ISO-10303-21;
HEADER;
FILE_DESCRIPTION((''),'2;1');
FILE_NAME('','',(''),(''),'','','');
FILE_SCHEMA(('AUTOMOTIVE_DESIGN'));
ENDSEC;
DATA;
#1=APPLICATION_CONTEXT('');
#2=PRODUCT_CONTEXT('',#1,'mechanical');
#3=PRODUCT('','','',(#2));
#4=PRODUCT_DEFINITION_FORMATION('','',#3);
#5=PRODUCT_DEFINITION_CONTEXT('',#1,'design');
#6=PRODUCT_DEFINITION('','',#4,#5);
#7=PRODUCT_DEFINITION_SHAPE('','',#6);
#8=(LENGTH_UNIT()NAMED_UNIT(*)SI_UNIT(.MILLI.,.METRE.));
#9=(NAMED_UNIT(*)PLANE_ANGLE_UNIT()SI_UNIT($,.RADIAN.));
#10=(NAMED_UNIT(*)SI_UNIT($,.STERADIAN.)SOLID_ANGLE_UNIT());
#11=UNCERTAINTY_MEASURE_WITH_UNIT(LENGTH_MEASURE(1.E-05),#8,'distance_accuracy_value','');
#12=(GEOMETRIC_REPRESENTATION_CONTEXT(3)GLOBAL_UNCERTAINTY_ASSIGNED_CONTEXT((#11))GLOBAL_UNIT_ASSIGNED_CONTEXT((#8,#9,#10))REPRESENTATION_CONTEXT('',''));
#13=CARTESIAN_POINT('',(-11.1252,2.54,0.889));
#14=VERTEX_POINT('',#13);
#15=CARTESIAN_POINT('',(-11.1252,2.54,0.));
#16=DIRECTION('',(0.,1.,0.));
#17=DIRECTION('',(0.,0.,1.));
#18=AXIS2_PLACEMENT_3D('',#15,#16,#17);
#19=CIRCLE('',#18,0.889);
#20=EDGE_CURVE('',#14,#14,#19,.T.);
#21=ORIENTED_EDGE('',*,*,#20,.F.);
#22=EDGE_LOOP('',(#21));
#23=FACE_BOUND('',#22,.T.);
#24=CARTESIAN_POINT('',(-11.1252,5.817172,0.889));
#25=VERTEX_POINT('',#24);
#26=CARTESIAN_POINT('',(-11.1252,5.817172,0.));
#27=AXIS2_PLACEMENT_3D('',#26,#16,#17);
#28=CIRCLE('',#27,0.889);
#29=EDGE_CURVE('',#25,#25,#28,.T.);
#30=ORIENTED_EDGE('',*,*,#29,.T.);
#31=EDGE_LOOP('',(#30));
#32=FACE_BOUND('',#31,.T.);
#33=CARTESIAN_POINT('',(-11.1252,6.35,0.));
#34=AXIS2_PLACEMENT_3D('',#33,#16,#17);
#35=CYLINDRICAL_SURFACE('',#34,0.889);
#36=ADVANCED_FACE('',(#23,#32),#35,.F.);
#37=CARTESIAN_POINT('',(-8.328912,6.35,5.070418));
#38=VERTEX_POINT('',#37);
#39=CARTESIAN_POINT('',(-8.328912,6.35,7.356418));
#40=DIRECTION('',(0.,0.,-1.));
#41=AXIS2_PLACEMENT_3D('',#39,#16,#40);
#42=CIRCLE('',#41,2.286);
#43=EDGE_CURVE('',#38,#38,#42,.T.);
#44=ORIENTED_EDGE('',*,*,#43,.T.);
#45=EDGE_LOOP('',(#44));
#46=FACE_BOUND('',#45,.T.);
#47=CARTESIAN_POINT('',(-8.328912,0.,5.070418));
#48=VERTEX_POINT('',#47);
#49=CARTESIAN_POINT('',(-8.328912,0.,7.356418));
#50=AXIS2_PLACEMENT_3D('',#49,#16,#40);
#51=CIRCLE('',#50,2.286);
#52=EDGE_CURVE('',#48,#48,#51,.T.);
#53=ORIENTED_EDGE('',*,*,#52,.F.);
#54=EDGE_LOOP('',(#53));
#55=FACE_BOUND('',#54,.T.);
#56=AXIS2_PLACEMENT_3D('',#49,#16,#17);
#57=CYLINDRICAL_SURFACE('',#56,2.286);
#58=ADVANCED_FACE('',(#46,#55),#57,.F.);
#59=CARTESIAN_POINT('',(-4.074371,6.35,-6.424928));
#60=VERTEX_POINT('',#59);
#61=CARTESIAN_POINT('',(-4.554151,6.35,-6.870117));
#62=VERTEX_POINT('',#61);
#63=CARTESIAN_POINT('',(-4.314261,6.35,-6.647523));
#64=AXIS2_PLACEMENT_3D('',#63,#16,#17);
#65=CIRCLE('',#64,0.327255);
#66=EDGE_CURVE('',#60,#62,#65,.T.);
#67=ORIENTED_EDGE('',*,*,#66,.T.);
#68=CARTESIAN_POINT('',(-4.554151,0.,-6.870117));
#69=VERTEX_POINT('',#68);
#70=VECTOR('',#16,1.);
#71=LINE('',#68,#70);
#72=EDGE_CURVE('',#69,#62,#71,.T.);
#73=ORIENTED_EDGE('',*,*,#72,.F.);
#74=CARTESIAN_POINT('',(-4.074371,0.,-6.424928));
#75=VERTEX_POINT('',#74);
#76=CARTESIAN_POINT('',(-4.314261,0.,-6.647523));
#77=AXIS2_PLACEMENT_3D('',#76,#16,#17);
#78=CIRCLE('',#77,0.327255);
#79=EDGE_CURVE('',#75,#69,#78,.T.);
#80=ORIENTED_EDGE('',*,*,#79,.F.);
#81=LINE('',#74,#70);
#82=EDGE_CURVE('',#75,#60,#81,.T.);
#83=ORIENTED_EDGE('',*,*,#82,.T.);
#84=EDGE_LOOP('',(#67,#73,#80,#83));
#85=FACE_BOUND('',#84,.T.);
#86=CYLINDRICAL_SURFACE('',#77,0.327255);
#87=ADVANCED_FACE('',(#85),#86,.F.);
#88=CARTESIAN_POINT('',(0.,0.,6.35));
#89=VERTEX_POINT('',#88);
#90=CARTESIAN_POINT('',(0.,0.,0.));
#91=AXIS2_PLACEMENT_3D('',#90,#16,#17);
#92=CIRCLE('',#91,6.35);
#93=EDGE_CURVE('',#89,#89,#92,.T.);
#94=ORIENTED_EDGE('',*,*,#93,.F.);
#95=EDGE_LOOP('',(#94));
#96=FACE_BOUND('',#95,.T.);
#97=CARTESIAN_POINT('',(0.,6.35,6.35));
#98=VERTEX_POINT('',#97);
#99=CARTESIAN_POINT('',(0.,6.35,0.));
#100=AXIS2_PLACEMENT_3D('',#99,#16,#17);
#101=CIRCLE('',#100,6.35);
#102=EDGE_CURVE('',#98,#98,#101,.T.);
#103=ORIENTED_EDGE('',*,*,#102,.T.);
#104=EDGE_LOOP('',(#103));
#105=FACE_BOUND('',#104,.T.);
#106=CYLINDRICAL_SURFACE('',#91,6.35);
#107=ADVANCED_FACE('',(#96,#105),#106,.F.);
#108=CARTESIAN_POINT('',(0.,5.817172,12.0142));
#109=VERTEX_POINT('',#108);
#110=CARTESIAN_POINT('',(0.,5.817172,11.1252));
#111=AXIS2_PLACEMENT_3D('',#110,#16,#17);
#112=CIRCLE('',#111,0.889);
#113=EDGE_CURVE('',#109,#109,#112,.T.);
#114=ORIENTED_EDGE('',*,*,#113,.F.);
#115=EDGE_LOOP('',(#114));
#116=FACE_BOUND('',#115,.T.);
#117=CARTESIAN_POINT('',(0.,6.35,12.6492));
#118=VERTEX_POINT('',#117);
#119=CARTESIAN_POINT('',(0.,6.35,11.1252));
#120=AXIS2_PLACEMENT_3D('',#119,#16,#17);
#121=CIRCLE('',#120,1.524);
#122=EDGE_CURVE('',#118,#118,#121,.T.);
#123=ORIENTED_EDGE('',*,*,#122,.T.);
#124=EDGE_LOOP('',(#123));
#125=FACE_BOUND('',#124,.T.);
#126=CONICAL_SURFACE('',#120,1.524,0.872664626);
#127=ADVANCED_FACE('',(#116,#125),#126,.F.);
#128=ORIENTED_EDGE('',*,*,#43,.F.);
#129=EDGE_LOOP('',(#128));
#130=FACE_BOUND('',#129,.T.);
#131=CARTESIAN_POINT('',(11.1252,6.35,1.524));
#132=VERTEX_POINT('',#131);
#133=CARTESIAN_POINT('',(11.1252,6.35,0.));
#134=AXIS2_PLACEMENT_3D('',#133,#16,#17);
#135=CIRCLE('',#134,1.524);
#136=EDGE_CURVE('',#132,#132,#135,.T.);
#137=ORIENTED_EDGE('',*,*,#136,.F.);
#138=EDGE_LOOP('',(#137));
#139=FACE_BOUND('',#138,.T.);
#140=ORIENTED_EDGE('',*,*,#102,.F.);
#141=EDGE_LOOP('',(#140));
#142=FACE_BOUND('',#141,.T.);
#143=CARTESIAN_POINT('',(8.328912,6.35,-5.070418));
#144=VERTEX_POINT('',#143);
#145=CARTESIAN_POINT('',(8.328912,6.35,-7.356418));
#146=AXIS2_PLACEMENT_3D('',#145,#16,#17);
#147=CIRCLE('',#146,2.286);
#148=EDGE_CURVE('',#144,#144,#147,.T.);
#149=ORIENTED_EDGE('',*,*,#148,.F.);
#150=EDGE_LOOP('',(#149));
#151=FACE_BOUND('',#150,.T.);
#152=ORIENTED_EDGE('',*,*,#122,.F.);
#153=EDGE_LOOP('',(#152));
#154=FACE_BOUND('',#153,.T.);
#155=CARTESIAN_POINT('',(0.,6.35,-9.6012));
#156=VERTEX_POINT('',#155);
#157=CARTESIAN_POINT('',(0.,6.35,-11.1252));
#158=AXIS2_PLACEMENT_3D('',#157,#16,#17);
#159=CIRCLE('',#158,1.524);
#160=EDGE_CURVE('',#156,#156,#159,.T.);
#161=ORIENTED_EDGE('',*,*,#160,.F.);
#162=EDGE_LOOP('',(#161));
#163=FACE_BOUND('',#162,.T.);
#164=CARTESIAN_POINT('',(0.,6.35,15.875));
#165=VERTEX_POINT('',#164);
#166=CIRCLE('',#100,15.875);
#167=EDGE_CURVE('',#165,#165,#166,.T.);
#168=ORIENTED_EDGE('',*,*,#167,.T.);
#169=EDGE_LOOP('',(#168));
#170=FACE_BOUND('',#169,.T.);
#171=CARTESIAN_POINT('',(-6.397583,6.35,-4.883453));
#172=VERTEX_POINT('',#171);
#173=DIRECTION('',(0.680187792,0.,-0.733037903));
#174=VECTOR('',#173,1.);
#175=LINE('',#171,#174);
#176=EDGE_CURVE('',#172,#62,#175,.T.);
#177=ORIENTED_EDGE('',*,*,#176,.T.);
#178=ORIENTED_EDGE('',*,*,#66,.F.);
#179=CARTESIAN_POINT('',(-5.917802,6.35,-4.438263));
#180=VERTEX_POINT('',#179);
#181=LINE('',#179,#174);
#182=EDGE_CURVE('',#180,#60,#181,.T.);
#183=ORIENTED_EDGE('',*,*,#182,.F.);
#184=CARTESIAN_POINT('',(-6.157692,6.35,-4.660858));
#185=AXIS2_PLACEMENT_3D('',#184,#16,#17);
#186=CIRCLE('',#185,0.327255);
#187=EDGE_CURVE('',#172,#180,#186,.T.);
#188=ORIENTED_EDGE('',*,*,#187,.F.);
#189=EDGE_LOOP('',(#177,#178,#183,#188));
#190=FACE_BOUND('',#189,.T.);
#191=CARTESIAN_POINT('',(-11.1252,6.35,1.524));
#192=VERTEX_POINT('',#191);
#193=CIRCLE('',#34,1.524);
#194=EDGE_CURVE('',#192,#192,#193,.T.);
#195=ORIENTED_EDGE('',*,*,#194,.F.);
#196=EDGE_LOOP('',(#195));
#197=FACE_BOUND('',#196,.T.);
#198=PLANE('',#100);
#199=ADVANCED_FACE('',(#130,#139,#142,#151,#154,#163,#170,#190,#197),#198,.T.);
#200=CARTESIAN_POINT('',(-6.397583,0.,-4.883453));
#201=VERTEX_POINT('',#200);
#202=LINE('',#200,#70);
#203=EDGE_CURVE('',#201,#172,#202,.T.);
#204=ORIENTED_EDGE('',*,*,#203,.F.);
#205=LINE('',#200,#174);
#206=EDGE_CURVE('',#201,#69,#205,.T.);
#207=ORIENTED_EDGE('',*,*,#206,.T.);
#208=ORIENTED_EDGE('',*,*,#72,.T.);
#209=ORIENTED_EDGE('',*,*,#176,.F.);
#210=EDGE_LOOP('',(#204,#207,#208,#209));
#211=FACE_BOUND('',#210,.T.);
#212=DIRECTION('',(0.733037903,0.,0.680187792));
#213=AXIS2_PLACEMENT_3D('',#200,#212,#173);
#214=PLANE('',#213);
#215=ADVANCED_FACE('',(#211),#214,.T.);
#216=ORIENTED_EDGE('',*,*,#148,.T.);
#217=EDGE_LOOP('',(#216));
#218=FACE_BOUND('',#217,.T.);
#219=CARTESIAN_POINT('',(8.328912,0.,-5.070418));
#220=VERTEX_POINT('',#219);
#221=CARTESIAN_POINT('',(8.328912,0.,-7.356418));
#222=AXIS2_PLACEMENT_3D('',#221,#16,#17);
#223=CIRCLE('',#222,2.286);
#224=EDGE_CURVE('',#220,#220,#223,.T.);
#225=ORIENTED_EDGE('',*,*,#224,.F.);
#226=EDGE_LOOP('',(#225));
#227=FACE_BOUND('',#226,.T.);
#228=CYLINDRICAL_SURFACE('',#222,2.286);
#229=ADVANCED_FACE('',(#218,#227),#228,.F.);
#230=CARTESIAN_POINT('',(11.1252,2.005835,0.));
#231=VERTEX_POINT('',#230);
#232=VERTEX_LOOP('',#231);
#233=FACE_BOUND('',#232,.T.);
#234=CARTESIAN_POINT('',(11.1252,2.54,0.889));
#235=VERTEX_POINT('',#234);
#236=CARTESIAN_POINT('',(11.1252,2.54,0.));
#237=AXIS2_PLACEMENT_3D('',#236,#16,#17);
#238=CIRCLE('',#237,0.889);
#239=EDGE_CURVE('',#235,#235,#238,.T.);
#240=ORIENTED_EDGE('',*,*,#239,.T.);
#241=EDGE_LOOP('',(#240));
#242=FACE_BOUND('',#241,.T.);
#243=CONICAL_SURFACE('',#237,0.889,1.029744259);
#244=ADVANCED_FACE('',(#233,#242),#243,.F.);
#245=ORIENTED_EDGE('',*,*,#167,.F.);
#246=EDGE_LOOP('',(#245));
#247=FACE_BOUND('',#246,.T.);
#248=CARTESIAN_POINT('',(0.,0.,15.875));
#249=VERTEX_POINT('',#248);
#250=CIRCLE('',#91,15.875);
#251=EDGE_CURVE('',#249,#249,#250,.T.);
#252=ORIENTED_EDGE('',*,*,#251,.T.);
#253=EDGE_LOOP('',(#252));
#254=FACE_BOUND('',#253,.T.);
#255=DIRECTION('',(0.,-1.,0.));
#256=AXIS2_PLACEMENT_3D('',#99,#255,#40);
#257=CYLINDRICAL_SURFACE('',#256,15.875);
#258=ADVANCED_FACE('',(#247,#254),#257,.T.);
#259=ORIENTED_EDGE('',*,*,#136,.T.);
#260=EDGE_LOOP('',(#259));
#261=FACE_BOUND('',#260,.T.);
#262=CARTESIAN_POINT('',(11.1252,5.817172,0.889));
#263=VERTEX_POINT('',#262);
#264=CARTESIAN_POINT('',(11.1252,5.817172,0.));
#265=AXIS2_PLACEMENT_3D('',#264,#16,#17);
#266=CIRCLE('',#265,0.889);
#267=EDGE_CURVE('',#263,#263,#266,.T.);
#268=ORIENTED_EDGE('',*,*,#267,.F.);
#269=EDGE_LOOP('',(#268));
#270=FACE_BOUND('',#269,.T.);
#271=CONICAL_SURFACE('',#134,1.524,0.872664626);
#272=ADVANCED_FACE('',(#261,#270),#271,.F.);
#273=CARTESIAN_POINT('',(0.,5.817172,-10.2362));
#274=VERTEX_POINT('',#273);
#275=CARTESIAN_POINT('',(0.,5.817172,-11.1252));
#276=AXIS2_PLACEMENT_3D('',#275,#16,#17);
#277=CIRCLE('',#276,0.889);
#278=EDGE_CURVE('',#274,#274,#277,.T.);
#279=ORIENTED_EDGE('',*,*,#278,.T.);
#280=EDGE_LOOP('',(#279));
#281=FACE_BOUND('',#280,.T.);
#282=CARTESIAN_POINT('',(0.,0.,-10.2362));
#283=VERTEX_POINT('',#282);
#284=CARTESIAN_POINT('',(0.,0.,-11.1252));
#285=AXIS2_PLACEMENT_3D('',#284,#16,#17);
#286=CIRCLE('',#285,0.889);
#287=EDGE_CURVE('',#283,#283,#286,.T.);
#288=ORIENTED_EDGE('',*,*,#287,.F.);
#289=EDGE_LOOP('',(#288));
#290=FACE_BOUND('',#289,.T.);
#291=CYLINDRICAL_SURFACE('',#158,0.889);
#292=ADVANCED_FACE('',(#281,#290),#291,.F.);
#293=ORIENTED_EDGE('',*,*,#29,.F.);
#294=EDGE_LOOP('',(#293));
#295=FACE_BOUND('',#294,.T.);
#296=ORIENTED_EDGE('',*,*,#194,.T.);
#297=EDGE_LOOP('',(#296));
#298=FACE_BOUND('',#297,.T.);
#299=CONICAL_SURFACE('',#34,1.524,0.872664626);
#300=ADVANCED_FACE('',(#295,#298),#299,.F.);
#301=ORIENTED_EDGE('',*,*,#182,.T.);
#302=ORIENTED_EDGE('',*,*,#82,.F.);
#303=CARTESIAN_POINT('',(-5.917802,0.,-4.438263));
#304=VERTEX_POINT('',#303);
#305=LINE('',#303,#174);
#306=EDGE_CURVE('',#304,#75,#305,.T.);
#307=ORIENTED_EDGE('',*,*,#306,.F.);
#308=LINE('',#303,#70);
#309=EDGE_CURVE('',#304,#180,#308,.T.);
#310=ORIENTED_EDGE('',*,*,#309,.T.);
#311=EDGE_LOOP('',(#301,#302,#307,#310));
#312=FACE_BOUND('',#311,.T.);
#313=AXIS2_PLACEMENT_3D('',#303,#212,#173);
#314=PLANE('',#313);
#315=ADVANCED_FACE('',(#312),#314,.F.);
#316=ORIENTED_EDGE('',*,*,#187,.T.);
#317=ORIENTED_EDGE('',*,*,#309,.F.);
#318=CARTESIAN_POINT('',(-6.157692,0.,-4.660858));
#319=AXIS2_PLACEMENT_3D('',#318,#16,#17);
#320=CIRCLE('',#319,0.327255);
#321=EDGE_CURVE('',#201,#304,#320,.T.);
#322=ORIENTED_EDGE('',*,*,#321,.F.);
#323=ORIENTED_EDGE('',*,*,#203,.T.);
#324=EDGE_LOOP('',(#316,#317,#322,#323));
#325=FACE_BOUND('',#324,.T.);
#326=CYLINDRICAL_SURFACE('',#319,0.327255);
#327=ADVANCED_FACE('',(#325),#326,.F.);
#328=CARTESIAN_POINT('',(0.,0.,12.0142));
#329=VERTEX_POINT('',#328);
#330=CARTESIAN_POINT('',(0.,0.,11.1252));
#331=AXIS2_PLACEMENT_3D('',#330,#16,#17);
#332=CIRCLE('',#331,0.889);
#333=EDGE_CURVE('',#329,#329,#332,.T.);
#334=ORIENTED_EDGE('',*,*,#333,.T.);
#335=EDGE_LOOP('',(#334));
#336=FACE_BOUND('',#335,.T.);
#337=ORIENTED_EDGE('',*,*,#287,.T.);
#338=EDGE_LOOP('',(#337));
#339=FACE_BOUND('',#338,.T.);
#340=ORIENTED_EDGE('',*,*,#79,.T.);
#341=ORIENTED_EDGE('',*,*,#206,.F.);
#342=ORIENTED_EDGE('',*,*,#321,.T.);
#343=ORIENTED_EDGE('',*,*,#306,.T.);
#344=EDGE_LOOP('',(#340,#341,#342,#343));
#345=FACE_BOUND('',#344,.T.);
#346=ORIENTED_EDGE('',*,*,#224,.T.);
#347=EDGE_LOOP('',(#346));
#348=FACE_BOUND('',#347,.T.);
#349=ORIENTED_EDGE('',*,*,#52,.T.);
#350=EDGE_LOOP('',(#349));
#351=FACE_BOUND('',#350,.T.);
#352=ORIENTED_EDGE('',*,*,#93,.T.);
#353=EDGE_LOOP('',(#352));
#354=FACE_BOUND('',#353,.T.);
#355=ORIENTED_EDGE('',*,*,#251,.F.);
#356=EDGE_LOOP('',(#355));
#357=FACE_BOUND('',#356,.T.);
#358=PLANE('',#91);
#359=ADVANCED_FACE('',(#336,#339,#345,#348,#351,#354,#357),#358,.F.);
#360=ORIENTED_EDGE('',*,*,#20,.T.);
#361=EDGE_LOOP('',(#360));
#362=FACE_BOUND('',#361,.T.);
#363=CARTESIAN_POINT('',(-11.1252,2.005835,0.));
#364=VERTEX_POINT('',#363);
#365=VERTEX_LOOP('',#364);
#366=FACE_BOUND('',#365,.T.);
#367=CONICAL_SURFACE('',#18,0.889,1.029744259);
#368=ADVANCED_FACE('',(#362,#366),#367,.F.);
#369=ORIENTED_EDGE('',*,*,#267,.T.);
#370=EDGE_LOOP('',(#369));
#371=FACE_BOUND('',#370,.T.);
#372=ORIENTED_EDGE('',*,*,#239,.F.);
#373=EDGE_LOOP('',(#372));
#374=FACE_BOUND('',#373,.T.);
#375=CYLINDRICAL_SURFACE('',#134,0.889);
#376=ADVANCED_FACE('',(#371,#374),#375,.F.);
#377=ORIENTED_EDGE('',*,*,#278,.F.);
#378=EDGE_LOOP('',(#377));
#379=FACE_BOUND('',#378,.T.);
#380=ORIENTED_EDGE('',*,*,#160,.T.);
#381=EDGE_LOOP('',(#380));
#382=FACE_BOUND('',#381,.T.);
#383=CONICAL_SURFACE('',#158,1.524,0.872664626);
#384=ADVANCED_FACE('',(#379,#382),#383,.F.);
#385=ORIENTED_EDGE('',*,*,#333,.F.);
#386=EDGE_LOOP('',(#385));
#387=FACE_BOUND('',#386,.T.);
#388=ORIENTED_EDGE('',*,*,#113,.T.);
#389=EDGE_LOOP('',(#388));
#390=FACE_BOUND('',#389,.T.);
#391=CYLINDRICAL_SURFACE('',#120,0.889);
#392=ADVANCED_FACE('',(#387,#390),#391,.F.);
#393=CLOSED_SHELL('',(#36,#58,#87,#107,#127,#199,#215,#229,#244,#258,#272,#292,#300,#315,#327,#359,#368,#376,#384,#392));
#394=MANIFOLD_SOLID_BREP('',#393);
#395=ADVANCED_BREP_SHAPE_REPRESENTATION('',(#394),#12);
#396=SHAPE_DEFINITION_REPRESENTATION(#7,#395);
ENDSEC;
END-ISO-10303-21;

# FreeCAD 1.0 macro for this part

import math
import FreeCAD as App
import Part
import Sketcher
Q = App.Units.Quantity


def add_polygon(sketch, points):
    """Adds a closed chain of lines whose ends are joined by coincident constraints."""
    first, n = sketch.GeometryCount, len(points)
    for a, b in zip(points, points[1:] + points[:1]):
        sketch.addGeometry(Part.LineSegment(App.Vector(*a, 0), App.Vector(*b, 0)), False)
    for i in range(n):
        sketch.addConstraint(Sketcher.Constraint("Coincident", first + i, 2, first + (i + 1) % n, 1))

doc = App.newDocument("Part")
body = doc.addObject("PartDesign::Body", "Body")

# Sketch on XZ plane
sketch1 = doc.addObject("Sketcher::SketchObject", "Sketch")
body.addObject(sketch1)
sketch1.AttachmentSupport = (doc.XZ_Plane, [""])
sketch1.MapMode = "FlatFace"
sketch1.addGeometry(Part.Circle(App.Vector(0, 0, 0), App.Vector(0, 0, 1), 15.875), False)
sketch1.addConstraint(Sketcher.Constraint("Coincident", 0, 3, -1, 1))
sketch1.addConstraint(Sketcher.Constraint("Diameter", 0, Q("1.25 in")))
pad1 = doc.addObject("PartDesign::Pad", "Pad")
body.addObject(pad1)
pad1.Profile = sketch1
pad1.Length = Q("0.25 in")
pad1.Reversed = True

# Sketch on XZ plane
sketch2 = doc.addObject("Sketcher::SketchObject", "Sketch001")
body.addObject(sketch2)
sketch2.AttachmentSupport = (doc.XZ_Plane, [""])
sketch2.MapMode = "FlatFace"
sketch2.AttachmentOffset = App.Placement(App.Vector(0, 0, -0.25 * 25.4), App.Rotation())
sketch2.addGeometry(Part.Circle(App.Vector(0, 0, 0), App.Vector(0, 0, 1), 6.35), False)
sketch2.addConstraint(Sketcher.Constraint("Coincident", 0, 3, -1, 1))
sketch2.addConstraint(Sketcher.Constraint("Diameter", 0, Q("0.5 in")))
pocket1 = doc.addObject("PartDesign::Pocket", "Pocket")
body.addObject(pocket1)
pocket1.Profile = sketch2
pocket1.Type = "ThroughAll"
pocket1.Reversed = True

# Sketch on XZ plane
sketch3 = doc.addObject("Sketcher::SketchObject", "Sketch002")
body.addObject(sketch3)
sketch3.AttachmentSupport = (doc.XZ_Plane, [""])
sketch3.MapMode = "FlatFace"
sketch3.AttachmentOffset = App.Placement(App.Vector(0, 0, -0.25 * 25.4), App.Rotation())
sketch3.addGeometry(Part.Circle(App.Vector(0, -11.1252, 0), App.Vector(0, 0, 1), 0.889), False)
sketch3.addConstraint(Sketcher.Constraint("PointOnObject", 0, 3, -2))
sketch3.addConstraint(Sketcher.Constraint("Diameter", 0, Q("0.07 in")))
sketch3.addConstraint(Sketcher.Constraint("DistanceY", 0, 3, -1, 1, Q("0.438 in")))
doc.recompute()
hole = doc.addObject("PartDesign::Hole", "Hole")
body.addObject(hole)
hole.Profile = sketch3
hole.ThreadType = "None"
hole.Diameter = Q("0.07 in")
hole.DepthType = "ThroughAll"
hole.HoleCutType = "Countersink"
hole.HoleCutDiameter = Q("0.12 in")
hole.HoleCutCountersinkAngle = 100
hole.Reversed = True
doc.recompute()

polarpattern = doc.addObject("PartDesign::PolarPattern", "PolarPattern")
body.addObject(polarpattern)
polarpattern.Originals = [hole]
polarpattern.Axis = (doc.Y_Axis, [""])
polarpattern.Angle = 360
polarpattern.Occurrences = 2
body.Tip = polarpattern

# Sketch on YZ plane
sketch4 = doc.addObject("Sketcher::SketchObject", "Sketch003")
body.addObject(sketch4)
sketch4.AttachmentSupport = (doc.YZ_Plane, [""])
sketch4.MapMode = "FlatFace"
sketch4.AttachmentOffset = App.Placement(App.Vector(0, 0, 0.438 * 25.4), App.Rotation())
add_polygon(sketch4, [(2.005835, 0), (6.35, 0), (6.35, 1.524), (5.817172, 0.889), (2.54, 0.889)])  # lines 0-4
sketch4.addConstraint(Sketcher.Constraint("Horizontal", 0))
sketch4.addConstraint(Sketcher.Constraint("Vertical", 1))
sketch4.addConstraint(Sketcher.Constraint("Horizontal", 3))
sketch4.addConstraint(Sketcher.Constraint("PointOnObject", 0, 2, -1))
sketch4.addConstraint(Sketcher.Constraint("Angle", 2, Q("-130 deg")))
sketch4.addConstraint(Sketcher.Constraint("Angle", 4, Q("-121 deg")))
sketch4.addConstraint(Sketcher.Constraint("DistanceY", 1, 1, 1, 2, Q("0.06 in")))
sketch4.addConstraint(Sketcher.Constraint("DistanceX", -1, 1, 3, 2, Q("0.1 in")))
sketch4.addConstraint(Sketcher.Constraint("DistanceX", -1, 1, 0, 2, Q("0.25 in")))
sketch4.addConstraint(Sketcher.Constraint("DistanceY", -1, 1, 2, 2, Q("0.035 in")))
groove = doc.addObject("PartDesign::Groove", "Groove")
body.addObject(groove)
groove.Profile = sketch4
groove.ReferenceAxis = (sketch4, ["H_Axis"])
groove.Angle = 360
doc.recompute()

polarpattern2 = doc.addObject("PartDesign::PolarPattern", "PolarPattern001")
body.addObject(polarpattern2)
polarpattern2.Originals = [groove]
polarpattern2.Axis = (doc.Y_Axis, [""])
polarpattern2.Angle = 360
polarpattern2.Occurrences = 2
body.Tip = polarpattern2

# Sketch on XZ plane
sketch5 = doc.addObject("Sketcher::SketchObject", "Sketch004")
body.addObject(sketch5)
sketch5.AttachmentSupport = (doc.XZ_Plane, [""])
sketch5.MapMode = "FlatFace"
sketch5.AttachmentOffset = App.Placement(App.Vector(0, 0, -0.25 * 25.4), App.Rotation())
sketch5.addGeometry(Part.Circle(App.Vector(8.328912, -7.356418, 0), App.Vector(0, 0, 1), 2.286), False)
sketch5.addConstraint(Sketcher.Constraint("Diameter", 0, Q("0.18 in")))
sketch5.addConstraint(Sketcher.Constraint("DistanceX", -1, 1, 0, 3, 8.328912))
sketch5.addConstraint(Sketcher.Constraint("DistanceY", 0, 3, -1, 1, 7.356418))
pocket2 = doc.addObject("PartDesign::Pocket", "Pocket001")
body.addObject(pocket2)
pocket2.Profile = sketch5
pocket2.Type = "ThroughAll"
pocket2.Reversed = True
doc.recompute()

polarpattern3 = doc.addObject("PartDesign::PolarPattern", "PolarPattern002")
body.addObject(polarpattern3)
polarpattern3.Originals = [pocket2]
polarpattern3.Axis = (doc.Y_Axis, [""])
polarpattern3.Angle = 360
polarpattern3.Occurrences = 2
body.Tip = polarpattern3

# Sketch on XZ plane
sketch6 = doc.addObject("Sketcher::SketchObject", "Sketch005")
body.addObject(sketch6)
sketch6.AttachmentSupport = (doc.XZ_Plane, [""])
sketch6.MapMode = "FlatFace"
sketch6.AttachmentOffset = App.Placement(App.Vector(0, 0, -0.25 * 25.4), App.Rotation())
sketch6.addGeometry(Part.LineSegment(App.Vector(-4.554151, -6.870117, 0), App.Vector(-6.397583, -4.883453, 0)), False)
sketch6.addGeometry(Part.ArcOfCircle(Part.Circle(App.Vector(-6.157692, -4.660858, 0), App.Vector(0, 0, 1), 0.327255), math.radians(42.85832), math.radians(222.858319)), False)
sketch6.addGeometry(Part.LineSegment(App.Vector(-5.917802, -4.438263, 0), App.Vector(-4.074371, -6.424928, 0)), False)
sketch6.addGeometry(Part.ArcOfCircle(Part.Circle(App.Vector(-4.314261, -6.647523, 0), App.Vector(0, 0, 1), 0.327255), math.radians(-137.14168), math.radians(42.858319)), False)
sketch6.addConstraint(Sketcher.Constraint("Tangent", 0, 2, 1, 2))
sketch6.addConstraint(Sketcher.Constraint("Tangent", 1, 1, 2, 1))
sketch6.addConstraint(Sketcher.Constraint("Tangent", 2, 2, 3, 2))
sketch6.addConstraint(Sketcher.Constraint("Tangent", 3, 1, 0, 1))
sketch6.addConstraint(Sketcher.Constraint("Equal", 1, 3))
sketch6.addConstraint(Sketcher.Constraint("Distance", 0, Q("0.1067 in")))
sketch6.addConstraint(Sketcher.Constraint("Radius", 1, 0.327255))
sketch6.addConstraint(Sketcher.Constraint("DistanceX", 3, 3, -1, 1, 4.314261))
sketch6.addConstraint(Sketcher.Constraint("DistanceX", 2, 2, -1, 1, 4.074371))
sketch6.addConstraint(Sketcher.Constraint("DistanceY", 1, 3, -1, 1, 4.660858))
pocket3 = doc.addObject("PartDesign::Pocket", "Pocket002")
body.addObject(pocket3)
pocket3.Profile = sketch6
pocket3.Type = "ThroughAll"
pocket3.Reversed = True

doc.recompute()
